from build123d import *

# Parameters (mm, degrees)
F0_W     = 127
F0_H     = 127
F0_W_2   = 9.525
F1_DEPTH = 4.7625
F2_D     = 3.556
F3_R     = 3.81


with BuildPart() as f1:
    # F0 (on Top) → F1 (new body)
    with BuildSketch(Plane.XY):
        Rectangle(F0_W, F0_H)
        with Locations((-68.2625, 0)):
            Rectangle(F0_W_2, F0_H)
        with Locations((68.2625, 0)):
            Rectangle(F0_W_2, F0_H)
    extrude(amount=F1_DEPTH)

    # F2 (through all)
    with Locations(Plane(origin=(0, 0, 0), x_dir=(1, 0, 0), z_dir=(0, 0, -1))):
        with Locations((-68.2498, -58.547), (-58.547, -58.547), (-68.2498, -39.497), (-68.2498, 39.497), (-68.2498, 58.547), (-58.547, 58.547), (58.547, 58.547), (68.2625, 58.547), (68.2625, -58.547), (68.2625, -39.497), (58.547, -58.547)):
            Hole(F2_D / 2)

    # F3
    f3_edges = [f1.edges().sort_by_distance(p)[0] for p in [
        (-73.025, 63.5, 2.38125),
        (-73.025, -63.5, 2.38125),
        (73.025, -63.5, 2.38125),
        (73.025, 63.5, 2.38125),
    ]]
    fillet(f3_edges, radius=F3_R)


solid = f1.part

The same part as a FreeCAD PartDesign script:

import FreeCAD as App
import Part
import Sketcher

V = App.Vector
Q = App.Units.Quantity


def edges_at(feature, points):
    """Names of the edges that pass closest to the given points."""
    edges = feature.Shape.Edges
    near = lambda p: min(range(len(edges)), key=lambda i: edges[i].distToShape(Part.Vertex(*p))[0])
    return sorted({f"Edge{near(p) + 1}" for p in points})


def add_polygon(sketch, points):
    """Adds a closed chain of lines whose ends are joined by coincident constraints."""
    first, n = sketch.GeometryCount, len(points)
    for a, b in zip(points, points[1:] + points[:1]):
        sketch.addGeometry(Part.LineSegment(App.Vector(*a, 0), App.Vector(*b, 0)), False)
    for i in range(n):
        sketch.addConstraint(Sketcher.Constraint("Coincident", first + i, 2, first + (i + 1) % n, 1))

doc = App.newDocument("Part")
body = doc.addObject("PartDesign::Body", "Body")

# Sketch on XY plane
sketch1 = doc.addObject("Sketcher::SketchObject", "Sketch")
body.addObject(sketch1)
sketch1.AttachmentSupport = (doc.XY_Plane, [""])
sketch1.MapMode = "FlatFace"
add_polygon(sketch1, [(-73, 64), (-73, -64), (73, -64), (73, 64)])  # lines 0-3
sketch1.addConstraint([
    Sketcher.Constraint("Vertical", 0),
    Sketcher.Constraint("Horizontal", 1),
    Sketcher.Constraint("Vertical", 2),
    Sketcher.Constraint("Horizontal", 3),
    Sketcher.Constraint("Symmetric", 0, 2, 2, 2, -1, 1),
    Sketcher.Constraint("DistanceY", 0, 2, 0, 1, Q("5 in")),
    Sketcher.Constraint("DistanceX", 1, 1, 1, 2, Q("5.75 in")),
])
pad1 = doc.addObject("PartDesign::Pad", "Pad")
body.addObject(pad1)
pad1.Profile = sketch1
pad1.Length = Q("0.1875 in")

# Sketch on XY plane
sketch2 = doc.addObject("Sketcher::SketchObject", "Sketch001")
body.addObject(sketch2)
sketch2.AttachmentSupport = (doc.XY_Plane, [""])
sketch2.MapMode = "FlatFace"
sketch2.addGeometry([
    Part.Circle(V(-68.2, 58.5, 0), V(0, 0, 1), 1.8),  # 0
    Part.Circle(V(-58.5, 58.5, 0), V(0, 0, 1), 1.8),  # 1
    Part.Circle(V(-68.2, 39.5, 0), V(0, 0, 1), 1.8),  # 2
    Part.Circle(V(-68.2, -39.5, 0), V(0, 0, 1), 1.8),  # 3
    Part.Circle(V(-68.2, -58.5, 0), V(0, 0, 1), 1.8),  # 4
    Part.Circle(V(-58.5, -58.5, 0), V(0, 0, 1), 1.8),  # 5
    Part.Circle(V(58.5, -58.5, 0), V(0, 0, 1), 1.8),  # 6
    Part.Circle(V(68.3, -58.5, 0), V(0, 0, 1), 1.8),  # 7
    Part.Circle(V(68.3, 58.5, 0), V(0, 0, 1), 1.8),  # 8
    Part.Circle(V(68.3, 39.5, 0), V(0, 0, 1), 1.8),  # 9
    Part.Circle(V(58.5, 58.5, 0), V(0, 0, 1), 1.8),  # 10
], False)
sketch2.addConstraint([
    Sketcher.Constraint("Equal", 0, 1),
    Sketcher.Constraint("Equal", 1, 2),
    Sketcher.Constraint("Equal", 2, 3),
    Sketcher.Constraint("Equal", 3, 4),
    Sketcher.Constraint("Equal", 4, 5),
    Sketcher.Constraint("Equal", 5, 6),
    Sketcher.Constraint("Equal", 6, 7),
    Sketcher.Constraint("Equal", 7, 8),
    Sketcher.Constraint("Equal", 8, 9),
    Sketcher.Constraint("Equal", 9, 10),
    Sketcher.Constraint("Symmetric", 1, 3, 6, 3, -1, 1),
    Sketcher.Constraint("Symmetric", 5, 3, 10, 3, -1, 1),
    Sketcher.Constraint("Symmetric", 5, 3, 6, 3, -2),
    Sketcher.Constraint("Symmetric", 2, 3, 3, 3, -1),
    Sketcher.Constraint("Symmetric", 0, 3, 4, 3, -1),
    Sketcher.Constraint("Symmetric", 7, 3, 8, 3, -1),
    Sketcher.Constraint("Horizontal", 0, 3, 1, 3),
    Sketcher.Constraint("Horizontal", 6, 3, 7, 3),
    Sketcher.Constraint("Horizontal", 2, 3, 9, 3),
    Sketcher.Constraint("Vertical", 0, 3, 2, 3),
    Sketcher.Constraint("Vertical", 8, 3, 9, 3),
    Sketcher.Constraint("Diameter", 0, Q("0.14 in")),
    Sketcher.Constraint("DistanceY", 2, 3, 0, 3, Q("0.75 in")),
    Sketcher.Constraint("DistanceY", 3, 3, 2, 3, Q("3.11 in")),
    Sketcher.Constraint("DistanceX", 5, 3, 6, 3, Q("4.61 in")),
    Sketcher.Constraint("DistanceX", 0, 3, -1, 1, Q("2.687 in")),
    Sketcher.Constraint("DistanceX", -1, 1, 7, 3, Q("2.6875 in")),
])
doc.recompute()
hole = doc.addObject("PartDesign::Hole", "Hole")
body.addObject(hole)
hole.Profile = sketch2
hole.ThreadType = "None"
hole.Diameter = Q("0.14 in")
hole.DepthType = "ThroughAll"
hole.Reversed = True
doc.recompute()

fillet = doc.addObject("PartDesign::Fillet", "Fillet")
body.addObject(fillet)
fillet.Base = (hole, edges_at(hole, [
    (-73.025, 63.5, 2.381),
    (-73.025, -63.5, 2.381),
    (73.025, -63.5, 2.381),
    (73.025, 63.5, 2.381),
]))
fillet.Radius = Q("0.15 in")

doc.recompute()
